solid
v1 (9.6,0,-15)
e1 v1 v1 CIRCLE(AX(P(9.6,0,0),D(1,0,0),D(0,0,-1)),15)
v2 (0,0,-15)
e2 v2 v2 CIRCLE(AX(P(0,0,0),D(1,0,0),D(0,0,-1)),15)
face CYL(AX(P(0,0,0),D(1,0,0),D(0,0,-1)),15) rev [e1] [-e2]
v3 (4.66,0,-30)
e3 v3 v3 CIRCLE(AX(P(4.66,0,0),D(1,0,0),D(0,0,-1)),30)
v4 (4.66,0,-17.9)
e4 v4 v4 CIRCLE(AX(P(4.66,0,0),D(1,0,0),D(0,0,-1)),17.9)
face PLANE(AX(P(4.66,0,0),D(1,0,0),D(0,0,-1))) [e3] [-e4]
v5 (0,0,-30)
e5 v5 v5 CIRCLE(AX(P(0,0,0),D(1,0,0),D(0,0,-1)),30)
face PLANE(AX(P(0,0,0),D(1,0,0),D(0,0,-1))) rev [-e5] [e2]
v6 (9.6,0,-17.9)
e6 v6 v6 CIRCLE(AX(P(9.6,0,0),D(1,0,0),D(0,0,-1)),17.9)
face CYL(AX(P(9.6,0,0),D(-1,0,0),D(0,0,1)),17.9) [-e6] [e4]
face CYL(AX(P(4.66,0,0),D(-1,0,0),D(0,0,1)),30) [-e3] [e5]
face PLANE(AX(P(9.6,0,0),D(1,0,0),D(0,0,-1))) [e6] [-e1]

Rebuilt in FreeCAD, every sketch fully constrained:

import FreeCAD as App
import Part
import Sketcher
Q = App.Units.Quantity

doc = App.newDocument("Part")
body = doc.addObject("PartDesign::Body", "Body")

sketch1 = body.newObject("Sketcher::SketchObject", "Sketch")
sketch1.AttachmentSupport = (doc.getObject("YZ_Plane"), [""])
sketch1.MapMode = "FlatFace"
sketch1.addGeometry(Part.Circle(App.Vector(0, 0, 0), App.Vector(0, 0, 1), 30), False)
sketch1.addConstraint([
    Sketcher.Constraint("Coincident", 0, 3, -1, 1),
    Sketcher.Constraint("Diameter", 0, Q("60 mm")),
])
pad1 = body.newObject("PartDesign::Pad", "Pad")
pad1.Profile = sketch1
pad1.Length = 4.66

sketch2 = body.newObject("Sketcher::SketchObject", "Sketch001")
sketch2.AttachmentSupport = (doc.getObject("YZ_Plane"), [""])
sketch2.MapMode = "FlatFace"
sketch2.AttachmentOffset = App.Placement(App.Vector(0, 0, 4.66), App.Rotation())
sketch2.addGeometry(Part.Circle(App.Vector(0, 0, 0), App.Vector(0, 0, 1), 18), False)
sketch2.addConstraint([
    Sketcher.Constraint("Coincident", 0, 3, -1, 1),
    Sketcher.Constraint("Diameter", 0, Q("35.8 mm")),
])
pad2 = body.newObject("PartDesign::Pad", "Pad001")
pad2.Profile = sketch2
pad2.Length = 4.94

sketch3 = body.newObject("Sketcher::SketchObject", "Sketch002")
sketch3.AttachmentSupport = (doc.getObject("YZ_Plane"), [""])
sketch3.MapMode = "FlatFace"
sketch3.AttachmentOffset = App.Placement(App.Vector(0, 0, 9.6), App.Rotation())
sketch3.addGeometry(Part.Circle(App.Vector(0, 0, 0), App.Vector(0, 0, 1), 15), False)
sketch3.addConstraint([
    Sketcher.Constraint("Coincident", 0, 3, -1, 1),
    Sketcher.Constraint("Diameter", 0, Q("30 mm")),
])
pocket1 = body.newObject("PartDesign::Pocket", "Pocket")
pocket1.Profile = sketch3
pocket1.Type = "ThroughAll"

doc.recompute()
